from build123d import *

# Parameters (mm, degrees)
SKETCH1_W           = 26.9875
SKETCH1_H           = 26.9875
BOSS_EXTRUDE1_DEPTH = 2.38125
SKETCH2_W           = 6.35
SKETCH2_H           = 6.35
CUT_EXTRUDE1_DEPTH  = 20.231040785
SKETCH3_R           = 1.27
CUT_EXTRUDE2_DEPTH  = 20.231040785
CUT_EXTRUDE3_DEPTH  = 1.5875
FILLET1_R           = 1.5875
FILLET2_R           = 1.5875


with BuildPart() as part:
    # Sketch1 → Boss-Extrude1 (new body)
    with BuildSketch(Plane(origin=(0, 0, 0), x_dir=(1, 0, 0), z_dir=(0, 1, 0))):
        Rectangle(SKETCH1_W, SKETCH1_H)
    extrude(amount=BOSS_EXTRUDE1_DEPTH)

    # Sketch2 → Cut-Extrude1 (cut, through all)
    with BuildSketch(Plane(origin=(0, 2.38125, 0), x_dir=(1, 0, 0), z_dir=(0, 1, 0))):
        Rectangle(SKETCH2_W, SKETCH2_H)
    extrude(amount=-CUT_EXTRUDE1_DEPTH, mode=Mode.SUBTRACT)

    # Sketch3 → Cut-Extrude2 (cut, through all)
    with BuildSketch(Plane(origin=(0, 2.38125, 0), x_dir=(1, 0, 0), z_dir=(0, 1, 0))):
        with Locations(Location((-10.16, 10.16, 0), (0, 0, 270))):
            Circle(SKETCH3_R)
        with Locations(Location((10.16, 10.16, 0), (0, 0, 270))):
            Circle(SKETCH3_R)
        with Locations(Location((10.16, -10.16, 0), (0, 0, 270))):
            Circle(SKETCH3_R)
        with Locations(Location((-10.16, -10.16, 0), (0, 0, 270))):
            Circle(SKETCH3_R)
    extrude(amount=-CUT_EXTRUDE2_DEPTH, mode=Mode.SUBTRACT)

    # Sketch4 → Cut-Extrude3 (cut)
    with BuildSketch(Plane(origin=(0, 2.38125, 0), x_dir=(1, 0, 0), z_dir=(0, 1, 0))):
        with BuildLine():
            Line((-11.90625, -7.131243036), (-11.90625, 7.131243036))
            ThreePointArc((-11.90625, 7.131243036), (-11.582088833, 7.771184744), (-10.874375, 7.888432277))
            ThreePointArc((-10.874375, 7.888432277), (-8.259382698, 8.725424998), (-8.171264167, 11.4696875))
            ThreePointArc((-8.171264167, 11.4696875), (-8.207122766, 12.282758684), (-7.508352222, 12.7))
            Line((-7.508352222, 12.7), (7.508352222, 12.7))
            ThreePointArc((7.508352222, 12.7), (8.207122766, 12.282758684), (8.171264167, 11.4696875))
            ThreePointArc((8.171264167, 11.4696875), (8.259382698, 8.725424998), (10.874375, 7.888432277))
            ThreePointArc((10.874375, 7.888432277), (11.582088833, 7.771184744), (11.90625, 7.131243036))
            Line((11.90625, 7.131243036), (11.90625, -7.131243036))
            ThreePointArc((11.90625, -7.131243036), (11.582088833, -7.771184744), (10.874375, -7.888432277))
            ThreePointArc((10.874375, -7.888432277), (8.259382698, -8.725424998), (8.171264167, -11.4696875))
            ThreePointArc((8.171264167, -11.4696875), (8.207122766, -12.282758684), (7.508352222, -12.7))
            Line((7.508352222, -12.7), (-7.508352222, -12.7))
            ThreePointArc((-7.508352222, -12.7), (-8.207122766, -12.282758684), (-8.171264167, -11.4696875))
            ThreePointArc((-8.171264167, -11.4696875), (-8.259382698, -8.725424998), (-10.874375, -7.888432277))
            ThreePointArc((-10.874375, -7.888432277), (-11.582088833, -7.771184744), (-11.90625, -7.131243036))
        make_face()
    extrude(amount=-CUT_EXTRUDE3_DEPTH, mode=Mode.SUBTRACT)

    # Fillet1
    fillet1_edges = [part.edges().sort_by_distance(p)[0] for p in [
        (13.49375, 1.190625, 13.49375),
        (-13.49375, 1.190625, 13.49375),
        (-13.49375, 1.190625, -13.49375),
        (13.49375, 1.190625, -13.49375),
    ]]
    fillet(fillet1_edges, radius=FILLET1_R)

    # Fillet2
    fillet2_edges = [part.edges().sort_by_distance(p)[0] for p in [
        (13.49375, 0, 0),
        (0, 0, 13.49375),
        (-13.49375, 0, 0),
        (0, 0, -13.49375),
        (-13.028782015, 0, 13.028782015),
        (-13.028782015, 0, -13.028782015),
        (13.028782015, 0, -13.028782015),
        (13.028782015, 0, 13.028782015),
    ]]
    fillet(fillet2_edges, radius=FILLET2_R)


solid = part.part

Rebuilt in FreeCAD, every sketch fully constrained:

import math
import FreeCAD as App
import Part
import Sketcher
Q = App.Units.Quantity


def edges_at(feature, points):
    """Names of the edges that pass closest to the given points."""
    edges = feature.Shape.Edges
    near = lambda p: min(range(len(edges)), key=lambda i: edges[i].distToShape(Part.Vertex(*p))[0])
    return sorted({f"Edge{near(p) + 1}" for p in points})

doc = App.newDocument("Part")
body = doc.addObject("PartDesign::Body", "Body")

sketch1 = body.newObject("Sketcher::SketchObject", "Sketch")
sketch1.AttachmentSupport = (doc.getObject("XZ_Plane"), [""])
sketch1.MapMode = "FlatFace"
sketch1.addGeometry(Part.LineSegment(App.Vector(-13, -13, 0), App.Vector(-13, 13, 0)), False)
sketch1.addGeometry(Part.LineSegment(App.Vector(-13, 13, 0), App.Vector(13, 13, 0)), False)
sketch1.addGeometry(Part.LineSegment(App.Vector(13, 13, 0), App.Vector(13, -13, 0)), False)
sketch1.addGeometry(Part.LineSegment(App.Vector(13, -13, 0), App.Vector(-13, -13, 0)), False)
sketch1.addConstraint(Sketcher.Constraint("Coincident", 0, 2, 1, 1))
sketch1.addConstraint(Sketcher.Constraint("Coincident", 1, 2, 2, 1))
sketch1.addConstraint(Sketcher.Constraint("Coincident", 2, 2, 3, 1))
sketch1.addConstraint(Sketcher.Constraint("Coincident", 3, 2, 0, 1))
sketch1.addConstraint(Sketcher.Constraint("Vertical", 0))
sketch1.addConstraint(Sketcher.Constraint("Horizontal", 1))
sketch1.addConstraint(Sketcher.Constraint("Vertical", 2))
sketch1.addConstraint(Sketcher.Constraint("Horizontal", 3))
sketch1.addConstraint(Sketcher.Constraint("Symmetric", 0, 2, 2, 2, -1, 1))
sketch1.addConstraint(Sketcher.Constraint("Equal", 3, 0))
sketch1.addConstraint(Sketcher.Constraint("DistanceX", 1, 1, 1, 2, Q("1.0625 in")))
pad1 = body.newObject("PartDesign::Pad", "Pad")
pad1.Profile = sketch1
pad1.Length = Q("0.09375 in")
pad1.Reversed = True

sketch2 = body.newObject("Sketcher::SketchObject", "Sketch001")
sketch2.AttachmentSupport = (doc.getObject("XZ_Plane"), [""])
sketch2.MapMode = "FlatFace"
sketch2.AttachmentOffset = App.Placement(App.Vector(0, 0, -0.09375 * 25.4), App.Rotation())
sketch2.addGeometry(Part.LineSegment(App.Vector(-3, -3, 0), App.Vector(-3, 3, 0)), False)
sketch2.addGeometry(Part.LineSegment(App.Vector(-3, 3, 0), App.Vector(3, 3, 0)), False)
sketch2.addGeometry(Part.LineSegment(App.Vector(3, 3, 0), App.Vector(3, -3, 0)), False)
sketch2.addGeometry(Part.LineSegment(App.Vector(3, -3, 0), App.Vector(-3, -3, 0)), False)
sketch2.addConstraint(Sketcher.Constraint("Coincident", 0, 2, 1, 1))
sketch2.addConstraint(Sketcher.Constraint("Coincident", 1, 2, 2, 1))
sketch2.addConstraint(Sketcher.Constraint("Coincident", 2, 2, 3, 1))
sketch2.addConstraint(Sketcher.Constraint("Coincident", 3, 2, 0, 1))
sketch2.addConstraint(Sketcher.Constraint("Vertical", 0))
sketch2.addConstraint(Sketcher.Constraint("Horizontal", 1))
sketch2.addConstraint(Sketcher.Constraint("Vertical", 2))
sketch2.addConstraint(Sketcher.Constraint("Horizontal", 3))
sketch2.addConstraint(Sketcher.Constraint("Symmetric", 0, 2, 2, 2, -1, 1))
sketch2.addConstraint(Sketcher.Constraint("Equal", 3, 0))
sketch2.addConstraint(Sketcher.Constraint("DistanceX", 1, 1, 1, 2, Q("0.25 in")))
pocket1 = body.newObject("PartDesign::Pocket", "Pocket")
pocket1.Profile = sketch2
pocket1.Type = "ThroughAll"
pocket1.Reversed = True

sketch3 = body.newObject("Sketcher::SketchObject", "Sketch002")
sketch3.AttachmentSupport = (doc.getObject("XZ_Plane"), [""])
sketch3.MapMode = "FlatFace"
sketch3.AttachmentOffset = App.Placement(App.Vector(0, 0, -0.09375 * 25.4), App.Rotation())
sketch3.addGeometry(Part.Circle(App.Vector(-10.2, -10.2, 0), App.Vector(0, 0, 1), 1.3), False)
sketch3.addGeometry(Part.Circle(App.Vector(10.2, -10.2, 0), App.Vector(0, 0, 1), 1.3), False)
sketch3.addGeometry(Part.Circle(App.Vector(10.2, 10.2, 0), App.Vector(0, 0, 1), 1.3), False)
sketch3.addGeometry(Part.Circle(App.Vector(-10.2, 10.2, 0), App.Vector(0, 0, 1), 1.3), False)
sketch3.addConstraint(Sketcher.Constraint("Equal", 0, 1))
sketch3.addConstraint(Sketcher.Constraint("Equal", 1, 2))
sketch3.addConstraint(Sketcher.Constraint("Equal", 2, 3))
sketch3.addConstraint(Sketcher.Constraint("Symmetric", 0, 3, 2, 3, -1, 1))
sketch3.addConstraint(Sketcher.Constraint("Symmetric", 1, 3, 3, 3, -1, 1))
sketch3.addConstraint(Sketcher.Constraint("Symmetric", 0, 3, 1, 3, -2))
sketch3.addConstraint(Sketcher.Constraint("Diameter", 0, Q("0.1 in")))
sketch3.addConstraint(Sketcher.Constraint("DistanceX", 0, 3, -1, 1, Q("0.4 in")))
sketch3.addConstraint(Sketcher.Constraint("DistanceY", 0, 3, -1, 1, Q("0.4 in")))
pocket2 = body.newObject("PartDesign::Pocket", "Pocket001")
pocket2.Profile = sketch3
pocket2.Type = "ThroughAll"
pocket2.Reversed = True

sketch4 = body.newObject("Sketcher::SketchObject", "Sketch003")
sketch4.AttachmentSupport = (doc.getObject("XZ_Plane"), [""])
sketch4.MapMode = "FlatFace"
sketch4.AttachmentOffset = App.Placement(App.Vector(0, 0, -0.09375 * 25.4), App.Rotation())
sketch4.addGeometry(Part.LineSegment(App.Vector(-11.9, -7.1, 0), App.Vector(-11.9, 7.1, 0)), False)
sketch4.addGeometry(Part.ArcOfCircle(Part.Circle(App.Vector(-11.1, 7.1, 0), App.Vector(0, 0, 1), 0.8), math.radians(73), math.radians(180)), False)
sketch4.addGeometry(Part.ArcOfCircle(Part.Circle(App.Vector(-10.2, 10.2, 0), App.Vector(0, 0, 1), 2.4), math.radians(-107), math.radians(33)), False)
sketch4.addGeometry(Part.ArcOfCircle(Part.Circle(App.Vector(-7.5, 11.9, 0), App.Vector(0, 0, 1), 0.8), math.radians(90), math.radians(213)), False)
sketch4.addGeometry(Part.LineSegment(App.Vector(-7.5, 12.7, 0), App.Vector(7.5, 12.7, 0)), False)
sketch4.addGeometry(Part.ArcOfCircle(Part.Circle(App.Vector(7.5, 11.9, 0), App.Vector(0, 0, 1), 0.8), math.radians(-33), math.radians(90)), False)
sketch4.addGeometry(Part.ArcOfCircle(Part.Circle(App.Vector(10.2, 10.2, 0), App.Vector(0, 0, 1), 2.4), math.radians(147), math.radians(287)), False)
sketch4.addGeometry(Part.ArcOfCircle(Part.Circle(App.Vector(11.1, 7.1, 0), App.Vector(0, 0, 1), 0.8), math.radians(0), math.radians(107)), False)
sketch4.addGeometry(Part.LineSegment(App.Vector(11.9, 7.1, 0), App.Vector(11.9, -7.1, 0)), False)
sketch4.addGeometry(Part.ArcOfCircle(Part.Circle(App.Vector(11.1, -7.1, 0), App.Vector(0, 0, 1), 0.8), math.radians(-107), math.radians(0)), False)
sketch4.addGeometry(Part.ArcOfCircle(Part.Circle(App.Vector(10.2, -10.2, 0), App.Vector(0, 0, 1), 2.4), math.radians(73), math.radians(213)), False)
sketch4.addGeometry(Part.ArcOfCircle(Part.Circle(App.Vector(7.5, -11.9, 0), App.Vector(0, 0, 1), 0.8), math.radians(-90), math.radians(33)), False)
sketch4.addGeometry(Part.LineSegment(App.Vector(7.5, -12.7, 0), App.Vector(-7.5, -12.7, 0)), False)
sketch4.addGeometry(Part.ArcOfCircle(Part.Circle(App.Vector(-7.5, -11.9, 0), App.Vector(0, 0, 1), 0.8), math.radians(147), math.radians(270)), False)
sketch4.addGeometry(Part.ArcOfCircle(Part.Circle(App.Vector(-10.2, -10.2, 0), App.Vector(0, 0, 1), 2.4), math.radians(-33), math.radians(107)), False)
sketch4.addGeometry(Part.ArcOfCircle(Part.Circle(App.Vector(-11.1, -7.1, 0), App.Vector(0, 0, 1), 0.8), math.radians(-180), math.radians(-73)), False)
sketch4.addConstraint(Sketcher.Constraint("Tangent", 0, 2, 1, 2))
sketch4.addConstraint(Sketcher.Constraint("Tangent", 1, 1, 2, 1))
sketch4.addConstraint(Sketcher.Constraint("Tangent", 2, 2, 3, 2))
sketch4.addConstraint(Sketcher.Constraint("Tangent", 3, 1, 4, 1))
sketch4.addConstraint(Sketcher.Constraint("Tangent", 4, 2, 5, 2))
sketch4.addConstraint(Sketcher.Constraint("Tangent", 5, 1, 6, 1))
sketch4.addConstraint(Sketcher.Constraint("Tangent", 6, 2, 7, 2))
sketch4.addConstraint(Sketcher.Constraint("Tangent", 7, 1, 8, 1))
sketch4.addConstraint(Sketcher.Constraint("Tangent", 8, 2, 9, 2))
sketch4.addConstraint(Sketcher.Constraint("Tangent", 9, 1, 10, 1))
sketch4.addConstraint(Sketcher.Constraint("Tangent", 10, 2, 11, 2))
sketch4.addConstraint(Sketcher.Constraint("Tangent", 11, 1, 12, 1))
sketch4.addConstraint(Sketcher.Constraint("Tangent", 12, 2, 13, 2))
sketch4.addConstraint(Sketcher.Constraint("Tangent", 13, 1, 14, 1))
sketch4.addConstraint(Sketcher.Constraint("Tangent", 14, 2, 15, 2))
sketch4.addConstraint(Sketcher.Constraint("Tangent", 15, 1, 0, 1))
sketch4.addConstraint(Sketcher.Constraint("Vertical", 0))
sketch4.addConstraint(Sketcher.Constraint("Horizontal", 4))
sketch4.addConstraint(Sketcher.Constraint("Vertical", 8))
sketch4.addConstraint(Sketcher.Constraint("Horizontal", 12))
sketch4.addConstraint(Sketcher.Constraint("Equal", 1, 3))
sketch4.addConstraint(Sketcher.Constraint("Equal", 3, 5))
sketch4.addConstraint(Sketcher.Constraint("Equal", 2, 6))
sketch4.addConstraint(Sketcher.Constraint("Equal", 5, 7))
sketch4.addConstraint(Sketcher.Constraint("Equal", 7, 9))
sketch4.addConstraint(Sketcher.Constraint("Equal", 6, 10))
sketch4.addConstraint(Sketcher.Constraint("Equal", 9, 11))
sketch4.addConstraint(Sketcher.Constraint("Equal", 11, 13))
sketch4.addConstraint(Sketcher.Constraint("Equal", 10, 14))
sketch4.addConstraint(Sketcher.Constraint("Equal", 13, 15))
sketch4.addConstraint(Sketcher.Constraint("Symmetric", 1, 3, 9, 3, -1, 1))
sketch4.addConstraint(Sketcher.Constraint("Symmetric", 3, 3, 11, 3, -1, 1))
sketch4.addConstraint(Sketcher.Constraint("Symmetric", 6, 3, 14, 3, -1, 1))
sketch4.addConstraint(Sketcher.Constraint("Symmetric", 2, 3, 6, 3, -2))
sketch4.addConstraint(Sketcher.Constraint("Radius", 1, Q("0.03125 in")))
sketch4.addConstraint(Sketcher.Constraint("Radius", 2, Q("0.09375 in")))
sketch4.addConstraint(Sketcher.Constraint("DistanceX", 2, 3, -1, 1, Q("0.4 in")))
sketch4.addConstraint(Sketcher.Constraint("DistanceY", -1, 1, 2, 3, Q("0.4 in")))
sketch4.addConstraint(Sketcher.Constraint("DistanceY", -1, 1, 3, 1, Q("0.5 in")))
sketch4.addConstraint(Sketcher.Constraint("DistanceX", 1, 3, -1, 1, Q("0.4375 in")))
pocket3 = body.newObject("PartDesign::Pocket", "Pocket002")
pocket3.Profile = sketch4
pocket3.Length = Q("0.0625 in")
pocket3.Reversed = True
doc.recompute()

fillet = body.newObject("PartDesign::Fillet", "Fillet")
fillet.Base = (pocket3, edges_at(pocket3, [
    (13.494, 1.191, 13.494),
    (-13.494, 1.191, 13.494),
    (-13.494, 1.191, -13.494),
    (13.494, 1.191, -13.494),
]))
fillet.Radius = Q("0.0625 in")
doc.recompute()

fillet2 = body.newObject("PartDesign::Fillet", "Fillet001")
fillet2.Base = (fillet, edges_at(fillet, [
    (13.494, 0, 0),
    (0, 0, 13.494),
    (-13.494, 0, 0),
    (0, 0, -13.494),
    (-13.029, 0, 13.029),
    (-13.029, 0, -13.029),
    (13.029, 0, -13.029),
    (13.029, 0, 13.029),
]))
fillet2.Radius = Q("0.0625 in")

doc.recompute()
